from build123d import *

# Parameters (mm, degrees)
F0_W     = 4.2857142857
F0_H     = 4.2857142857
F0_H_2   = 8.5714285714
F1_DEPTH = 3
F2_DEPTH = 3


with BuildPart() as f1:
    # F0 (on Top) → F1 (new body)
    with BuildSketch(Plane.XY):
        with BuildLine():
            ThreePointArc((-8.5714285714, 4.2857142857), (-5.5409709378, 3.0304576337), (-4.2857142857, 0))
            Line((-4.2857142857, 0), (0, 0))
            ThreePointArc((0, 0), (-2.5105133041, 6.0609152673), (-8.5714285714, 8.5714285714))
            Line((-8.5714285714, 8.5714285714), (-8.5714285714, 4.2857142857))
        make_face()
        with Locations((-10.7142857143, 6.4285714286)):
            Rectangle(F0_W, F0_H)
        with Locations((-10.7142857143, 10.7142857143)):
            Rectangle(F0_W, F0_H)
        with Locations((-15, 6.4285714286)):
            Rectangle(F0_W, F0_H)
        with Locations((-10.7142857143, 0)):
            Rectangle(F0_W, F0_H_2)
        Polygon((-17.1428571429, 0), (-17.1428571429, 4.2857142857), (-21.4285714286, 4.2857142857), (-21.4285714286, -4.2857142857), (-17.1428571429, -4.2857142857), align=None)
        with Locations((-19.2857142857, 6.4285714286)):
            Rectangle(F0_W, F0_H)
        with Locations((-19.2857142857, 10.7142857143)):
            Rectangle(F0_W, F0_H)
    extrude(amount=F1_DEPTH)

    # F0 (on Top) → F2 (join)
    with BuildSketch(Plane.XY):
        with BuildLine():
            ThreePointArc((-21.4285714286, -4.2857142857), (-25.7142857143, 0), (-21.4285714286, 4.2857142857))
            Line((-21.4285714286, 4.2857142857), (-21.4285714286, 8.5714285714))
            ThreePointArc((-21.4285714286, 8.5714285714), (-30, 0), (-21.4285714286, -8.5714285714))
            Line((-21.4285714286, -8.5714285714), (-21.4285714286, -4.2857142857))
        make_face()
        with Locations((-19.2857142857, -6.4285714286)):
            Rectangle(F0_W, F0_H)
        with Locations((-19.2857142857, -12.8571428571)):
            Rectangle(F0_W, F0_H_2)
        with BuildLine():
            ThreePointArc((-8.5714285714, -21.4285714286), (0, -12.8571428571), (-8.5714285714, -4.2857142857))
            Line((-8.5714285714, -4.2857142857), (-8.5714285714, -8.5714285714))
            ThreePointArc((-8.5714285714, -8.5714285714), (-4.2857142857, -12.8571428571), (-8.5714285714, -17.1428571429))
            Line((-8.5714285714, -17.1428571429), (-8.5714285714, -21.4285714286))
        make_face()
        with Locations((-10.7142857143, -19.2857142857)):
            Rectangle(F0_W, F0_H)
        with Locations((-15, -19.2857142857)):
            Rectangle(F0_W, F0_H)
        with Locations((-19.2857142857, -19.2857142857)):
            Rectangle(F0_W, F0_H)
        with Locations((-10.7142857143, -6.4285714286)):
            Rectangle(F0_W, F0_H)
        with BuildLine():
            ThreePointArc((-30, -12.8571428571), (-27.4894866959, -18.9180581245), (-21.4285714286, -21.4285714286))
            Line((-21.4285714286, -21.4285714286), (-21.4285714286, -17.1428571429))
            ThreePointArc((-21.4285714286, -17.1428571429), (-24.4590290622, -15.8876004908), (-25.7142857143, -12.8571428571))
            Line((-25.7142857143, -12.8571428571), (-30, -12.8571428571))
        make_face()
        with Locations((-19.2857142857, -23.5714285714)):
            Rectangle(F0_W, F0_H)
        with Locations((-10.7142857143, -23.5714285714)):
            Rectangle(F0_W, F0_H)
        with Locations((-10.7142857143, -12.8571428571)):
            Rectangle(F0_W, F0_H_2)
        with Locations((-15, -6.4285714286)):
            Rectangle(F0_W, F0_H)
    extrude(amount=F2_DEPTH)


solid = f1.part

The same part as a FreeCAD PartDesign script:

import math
import FreeCAD as App
import Part
import Sketcher

V = App.Vector
Q = App.Units.Quantity

doc = App.newDocument("Part")
params = doc.addObject("Spreadsheet::Sheet", "Params")
for row, (alias, value) in enumerate([
    ("pad1_length", "3 mm"),
    ("pad2_length", "3 mm"),
], start=1):
    params.set(f"A{row}", alias)
    params.set(f"B{row}", "=" + value)
    params.setAlias(f"B{row}", alias)

body = doc.addObject("PartDesign::Body", "Body")

sketch1 = body.newObject("Sketcher::SketchObject", "Sketch")
sketch1.AttachmentSupport = (doc.getObject("XY_Plane"), [""])
sketch1.MapMode = "FlatFace"
sketch1.addGeometry([
    Part.ArcOfCircle(Part.Circle(V(-8.6, 0, 0), V(0, 0, 1), 4.3), math.radians(0), math.radians(90)),
    Part.LineSegment(V(-4.3, 0, 0), V(0, 0, 0)),
    Part.ArcOfCircle(Part.Circle(V(-8.6, 0, 0), V(0, 0, 1), 8.6), math.radians(0), math.radians(90)),
    Part.LineSegment(V(-8.6, 8.6, 0), V(-8.6, 12.9, 0)),
    Part.LineSegment(V(-8.6, 12.9, 0), V(-12.9, 12.9, 0)),
    Part.LineSegment(V(-12.9, 12.9, 0), V(-12.9, 8.6, 0)),
    Part.LineSegment(V(-12.9, 8.6, 0), V(-17.1, 8.6, 0)),
    Part.LineSegment(V(-17.1, 8.6, 0), V(-17.1, 12.9, 0)),
    Part.LineSegment(V(-17.1, 12.9, 0), V(-21.4, 12.9, 0)),
    Part.LineSegment(V(-21.4, 12.9, 0), V(-21.4, 4.3, 0)),
    Part.LineSegment(V(-21.4, 4.3, 0), V(-21.4, -4.3, 0)),
    Part.LineSegment(V(-21.4, -4.3, 0), V(-17.1, -4.3, 0)),
    Part.LineSegment(V(-17.1, -4.3, 0), V(-17.1, 4.3, 0)),
    Part.LineSegment(V(-17.1, 4.3, 0), V(-12.9, 4.3, 0)),
    Part.LineSegment(V(-12.9, 4.3, 0), V(-12.9, -4.3, 0)),
    Part.LineSegment(V(-12.9, -4.3, 0), V(-8.6, -4.3, 0)),
    Part.LineSegment(V(-8.6, -4.3, 0), V(-8.6, 4.3, 0)),
], False)
sketch1.addConstraint([
    Sketcher.Constraint("Coincident", 0, 1, 1, 1),
    Sketcher.Constraint("Coincident", 1, 2, 2, 1),
    Sketcher.Constraint("Coincident", 2, 2, 3, 1),
    Sketcher.Constraint("Coincident", 3, 2, 4, 1),
    Sketcher.Constraint("Coincident", 4, 2, 5, 1),
    Sketcher.Constraint("Coincident", 5, 2, 6, 1),
    Sketcher.Constraint("Coincident", 6, 2, 7, 1),
    Sketcher.Constraint("Coincident", 7, 2, 8, 1),
    Sketcher.Constraint("Coincident", 8, 2, 9, 1),
    Sketcher.Constraint("Coincident", 9, 2, 10, 1),
    Sketcher.Constraint("Coincident", 10, 2, 11, 1),
    Sketcher.Constraint("Coincident", 11, 2, 12, 1),
    Sketcher.Constraint("Coincident", 12, 2, 13, 1),
    Sketcher.Constraint("Coincident", 13, 2, 14, 1),
    Sketcher.Constraint("Coincident", 14, 2, 15, 1),
    Sketcher.Constraint("Coincident", 15, 2, 16, 1),
    Sketcher.Constraint("Coincident", 16, 2, 0, 2),
    Sketcher.Constraint("Horizontal", 1),
    Sketcher.Constraint("Vertical", 3),
    Sketcher.Constraint("Horizontal", 4),
    Sketcher.Constraint("Vertical", 5),
    Sketcher.Constraint("Horizontal", 6),
    Sketcher.Constraint("Vertical", 7),
    Sketcher.Constraint("Horizontal", 8),
    Sketcher.Constraint("Vertical", 9),
    Sketcher.Constraint("Vertical", 10),
    Sketcher.Constraint("Horizontal", 11),
    Sketcher.Constraint("Vertical", 12),
    Sketcher.Constraint("Horizontal", 13),
    Sketcher.Constraint("Vertical", 14),
    Sketcher.Constraint("Horizontal", 15),
    Sketcher.Constraint("Vertical", 16),
    Sketcher.Constraint("Coincident", 1, 2, -1, 1),
    Sketcher.Constraint("Coincident", 2, 3, 0, 3),
    Sketcher.Constraint("PointOnObject", 0, 3, -1),
    Sketcher.Constraint("Horizontal", 2, 2, 5, 2),
    Sketcher.Constraint("Horizontal", 4, 2, 7, 2),
    Sketcher.Constraint("Horizontal", 9, 2, 12, 2),
    Sketcher.Constraint("Horizontal", 11, 2, 14, 2),
    Sketcher.Constraint("Horizontal", 13, 2, 16, 2),
    Sketcher.Constraint("Vertical", 0, 3, 2, 2),
    Sketcher.Constraint("Vertical", 7, 2, 11, 2),
    Sketcher.Constraint("Vertical", 5, 2, 13, 2),
    Sketcher.Constraint("Vertical", 3, 2, 15, 2),
    Sketcher.Constraint("Equal", 1, 4),
    Sketcher.Constraint("Equal", 4, 6),
    Sketcher.Constraint("Equal", 6, 8),
    Sketcher.Constraint("Equal", 15, 3),
    Sketcher.Constraint("Equal", 9, 10),
    Sketcher.Constraint("Radius", 2, Q("8.571429 mm")),
    Sketcher.Constraint("Radius", 0, Q("4.285714 mm")),
])
pad1 = body.newObject("PartDesign::Pad", "Pad")
pad1.Profile = sketch1
pad1.setExpression("Length", "Params.pad1_length")

sketch2 = body.newObject("Sketcher::SketchObject", "Sketch001")
sketch2.AttachmentSupport = (doc.getObject("XY_Plane"), [""])
sketch2.MapMode = "FlatFace"
sketch2.addGeometry([
    Part.ArcOfCircle(Part.Circle(V(-21.4, 0, 0), V(0, 0, 1), 4.3), math.radians(90), math.radians(270)),
    Part.LineSegment(V(-21.4, 4.3, 0), V(-21.4, 8.6, 0)),
    Part.ArcOfCircle(Part.Circle(V(-21.4, 0, 0), V(0, 0, 1), 8.6), math.radians(90), math.radians(270)),
    Part.LineSegment(V(-21.4, -8.6, 0), V(-21.4, -17.1, 0)),
    Part.ArcOfCircle(Part.Circle(V(-21.4, -12.9, 0), V(0, 0, 1), 4.3), math.radians(180), math.radians(270)),
    Part.LineSegment(V(-25.7, -12.9, 0), V(-30, -12.9, 0)),
    Part.ArcOfCircle(Part.Circle(V(-21.4, -12.9, 0), V(0, 0, 1), 8.6), math.radians(180), math.radians(270)),
    Part.LineSegment(V(-21.4, -21.4, 0), V(-21.4, -25.7, 0)),
    Part.LineSegment(V(-21.4, -25.7, 0), V(-17.1, -25.7, 0)),
    Part.LineSegment(V(-17.1, -25.7, 0), V(-17.1, -21.4, 0)),
    Part.LineSegment(V(-17.1, -21.4, 0), V(-12.9, -21.4, 0)),
    Part.LineSegment(V(-12.9, -21.4, 0), V(-12.9, -25.7, 0)),
    Part.LineSegment(V(-12.9, -25.7, 0), V(-8.6, -25.7, 0)),
    Part.LineSegment(V(-8.6, -25.7, 0), V(-8.6, -21.4, 0)),
    Part.ArcOfCircle(Part.Circle(V(-8.6, -12.9, 0), V(0, 0, 1), 8.6), math.radians(-90), math.radians(90)),
    Part.LineSegment(V(-8.6, -4.3, 0), V(-21.4, -4.3, 0)),
    Part.LineSegment(V(-12.9, -8.6, 0), V(-12.9, -17.1, 0)),
    Part.LineSegment(V(-12.9, -17.1, 0), V(-17.1, -17.1, 0)),
    Part.LineSegment(V(-17.1, -17.1, 0), V(-17.1, -8.6, 0)),
    Part.LineSegment(V(-17.1, -8.6, 0), V(-12.9, -8.6, 0)),
    Part.ArcOfCircle(Part.Circle(V(-8.6, -12.9, 0), V(0, 0, 1), 4.3), math.radians(-90), math.radians(90)),
    Part.LineSegment(V(-8.6, -17.1, 0), V(-8.6, -8.6, 0)),
], False)
sketch2.addConstraint([
    Sketcher.Constraint("Coincident", 0, 1, 1, 1),
    Sketcher.Constraint("Coincident", 1, 2, 2, 1),
    Sketcher.Constraint("Coincident", 2, 2, 3, 1),
    Sketcher.Constraint("Coincident", 3, 2, 4, 2),
    Sketcher.Constraint("Coincident", 4, 1, 5, 1),
    Sketcher.Constraint("Coincident", 5, 2, 6, 1),
    Sketcher.Constraint("Coincident", 6, 2, 7, 1),
    Sketcher.Constraint("Coincident", 7, 2, 8, 1),
    Sketcher.Constraint("Coincident", 8, 2, 9, 1),
    Sketcher.Constraint("Coincident", 9, 2, 10, 1),
    Sketcher.Constraint("Coincident", 10, 2, 11, 1),
    Sketcher.Constraint("Coincident", 11, 2, 12, 1),
    Sketcher.Constraint("Coincident", 12, 2, 13, 1),
    Sketcher.Constraint("Coincident", 13, 2, 14, 1),
    Sketcher.Constraint("Tangent", 14, 2, 15, 1),
    Sketcher.Constraint("Tangent", 15, 2, 0, 2),
    Sketcher.Constraint("Coincident", 16, 2, 17, 1),
    Sketcher.Constraint("Coincident", 17, 2, 18, 1),
    Sketcher.Constraint("Coincident", 18, 2, 19, 1),
    Sketcher.Constraint("Coincident", 19, 2, 16, 1),
    Sketcher.Constraint("Coincident", 20, 1, 21, 1),
    Sketcher.Constraint("Coincident", 21, 2, 20, 2),
    Sketcher.Constraint("Vertical", 1),
    Sketcher.Constraint("Vertical", 3),
    Sketcher.Constraint("Horizontal", 5),
    Sketcher.Constraint("Vertical", 7),
    Sketcher.Constraint("Horizontal", 8),
    Sketcher.Constraint("Vertical", 9),
    Sketcher.Constraint("Horizontal", 10),
    Sketcher.Constraint("Vertical", 11),
    Sketcher.Constraint("Horizontal", 12),
    Sketcher.Constraint("Vertical", 13),
    Sketcher.Constraint("Horizontal", 15),
    Sketcher.Constraint("Vertical", 16),
    Sketcher.Constraint("Horizontal", 17),
    Sketcher.Constraint("Vertical", 18),
    Sketcher.Constraint("Horizontal", 19),
    Sketcher.Constraint("Vertical", 21),
    Sketcher.Constraint("Coincident", 2, 3, 0, 3),
    Sketcher.Constraint("Coincident", 6, 3, 4, 3),
    Sketcher.Constraint("Coincident", 20, 3, 14, 3),
    Sketcher.Constraint("Equal", 0, 4),
    Sketcher.Constraint("Equal", 2, 6),
    Sketcher.Constraint("Equal", 6, 14),
    Sketcher.Constraint("Equal", 4, 20),
    Sketcher.Constraint("Symmetric", 1, 2, 2, 2, -1),
    Sketcher.Constraint("Horizontal", 6, 3, 14, 3),
    Sketcher.Constraint("Horizontal", 20, 3, 4, 1),
    Sketcher.Constraint("Horizontal", 6, 2, 9, 2),
    Sketcher.Constraint("Horizontal", 8, 2, 11, 2),
    Sketcher.Constraint("Horizontal", 3, 2, 16, 2),
    Sketcher.Constraint("Horizontal", 2, 2, 18, 2),
    Sketcher.Constraint("Vertical", 2, 3, 4, 3),
    Sketcher.Constraint("Vertical", 6, 3, 0, 1),
    Sketcher.Constraint("Vertical", 3, 2, 6, 2),
    Sketcher.Constraint("Vertical", 20, 3, 12, 2),
    Sketcher.Constraint("Vertical", 11, 2, 16, 2),
    Sketcher.Constraint("Vertical", 9, 2, 17, 2),
    Sketcher.Constraint("Vertical", 14, 2, 20, 1),
    Sketcher.Constraint("Equal", 5, 8),
    Sketcher.Constraint("Equal", 8, 10),
    Sketcher.Constraint("Equal", 10, 12),
    Sketcher.Constraint("Equal", 1, 7),
    Sketcher.Constraint("DistanceX", 5, 2, -1, 1, Q("30 mm")),
    Sketcher.Constraint("Radius", 2, Q("8.571429 mm")),
    Sketcher.Constraint("Radius", 0, Q("4.285714 mm")),
])
pad2 = body.newObject("PartDesign::Pad", "Pad001")
pad2.Profile = sketch2
pad2.setExpression("Length", "Params.pad2_length")

doc.recompute()
